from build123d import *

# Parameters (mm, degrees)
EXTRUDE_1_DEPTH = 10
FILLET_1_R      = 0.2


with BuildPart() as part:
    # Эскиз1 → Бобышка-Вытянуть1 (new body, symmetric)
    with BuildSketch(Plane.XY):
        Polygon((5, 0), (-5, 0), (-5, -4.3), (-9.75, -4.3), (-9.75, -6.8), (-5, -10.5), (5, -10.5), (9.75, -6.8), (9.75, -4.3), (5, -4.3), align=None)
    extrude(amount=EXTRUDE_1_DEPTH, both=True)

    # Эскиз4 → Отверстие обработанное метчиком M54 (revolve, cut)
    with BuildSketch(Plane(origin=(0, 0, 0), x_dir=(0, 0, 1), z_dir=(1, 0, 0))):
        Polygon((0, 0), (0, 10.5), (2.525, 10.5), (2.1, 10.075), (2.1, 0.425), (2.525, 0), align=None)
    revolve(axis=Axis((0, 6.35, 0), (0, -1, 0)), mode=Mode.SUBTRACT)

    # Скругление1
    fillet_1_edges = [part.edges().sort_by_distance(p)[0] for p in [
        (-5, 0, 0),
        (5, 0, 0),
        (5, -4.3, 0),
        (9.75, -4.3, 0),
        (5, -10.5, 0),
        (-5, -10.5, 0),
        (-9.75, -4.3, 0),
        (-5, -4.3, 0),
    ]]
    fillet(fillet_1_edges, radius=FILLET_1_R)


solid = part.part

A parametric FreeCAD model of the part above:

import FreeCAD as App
import Part
import Sketcher

V = App.Vector
Q = App.Units.Quantity


def edges_at(feature, points):
    """Names of the edges that pass closest to the given points."""
    edges = feature.Shape.Edges
    near = lambda p: min(range(len(edges)), key=lambda i: edges[i].distToShape(Part.Vertex(*p))[0])
    return sorted({f"Edge{near(p) + 1}" for p in points})

doc = App.newDocument("Part")
body = doc.addObject("PartDesign::Body", "Body")

sketch1 = body.newObject("Sketcher::SketchObject", "Sketch")
sketch1.AttachmentSupport = (doc.getObject("XY_Plane"), [""])
sketch1.MapMode = "FlatFace"
sketch1.addGeometry([
    Part.LineSegment(V(5, 0, 0), V(-5, 0, 0)),
    Part.LineSegment(V(-5, 0, 0), V(-5, -4.3, 0)),
    Part.LineSegment(V(-5, -4.3, 0), V(-9.8, -4.3, 0)),
    Part.LineSegment(V(-9.8, -4.3, 0), V(-9.8, -6.8, 0)),
    Part.LineSegment(V(-9.8, -6.8, 0), V(-5, -10.5, 0)),
    Part.LineSegment(V(-5, -10.5, 0), V(5, -10.5, 0)),
    Part.LineSegment(V(5, -10.5, 0), V(9.8, -6.8, 0)),
    Part.LineSegment(V(9.8, -6.8, 0), V(9.8, -4.3, 0)),
    Part.LineSegment(V(9.8, -4.3, 0), V(5, -4.3, 0)),
    Part.LineSegment(V(5, -4.3, 0), V(5, 0, 0)),
], False)
sketch1.addConstraint([
    Sketcher.Constraint("Coincident", 0, 2, 1, 1),
    Sketcher.Constraint("Coincident", 1, 2, 2, 1),
    Sketcher.Constraint("Coincident", 2, 2, 3, 1),
    Sketcher.Constraint("Coincident", 3, 2, 4, 1),
    Sketcher.Constraint("Coincident", 4, 2, 5, 1),
    Sketcher.Constraint("Coincident", 5, 2, 6, 1),
    Sketcher.Constraint("Coincident", 6, 2, 7, 1),
    Sketcher.Constraint("Coincident", 7, 2, 8, 1),
    Sketcher.Constraint("Coincident", 8, 2, 9, 1),
    Sketcher.Constraint("Coincident", 9, 2, 0, 1),
    Sketcher.Constraint("Horizontal", 0),
    Sketcher.Constraint("Vertical", 1),
    Sketcher.Constraint("Horizontal", 2),
    Sketcher.Constraint("Vertical", 3),
    Sketcher.Constraint("Horizontal", 5),
    Sketcher.Constraint("Vertical", 7),
    Sketcher.Constraint("Horizontal", 8),
    Sketcher.Constraint("Vertical", 9),
    Sketcher.Constraint("Symmetric", 0, 2, 9, 2, -1, 1),
    Sketcher.Constraint("Symmetric", 3, 2, 6, 2, -2),
    Sketcher.Constraint("Horizontal", 2, 2, 7, 2),
    Sketcher.Constraint("Vertical", 1, 2, 4, 2),
    Sketcher.Constraint("Vertical", 5, 2, 8, 2),
    Sketcher.Constraint("DistanceX", 0, 2, 0, 1, Q("10 mm")),
    Sketcher.Constraint("DistanceY", 1, 2, 1, 1, Q("4.3 mm")),
    Sketcher.Constraint("DistanceY", 3, 2, 3, 1, Q("2.5 mm")),
    Sketcher.Constraint("DistanceX", 2, 2, 2, 1, Q("4.75 mm")),
    Sketcher.Constraint("DistanceY", 4, 2, -1, 1, Q("10.5 mm")),
])
pad1 = body.newObject("PartDesign::Pad", "Pad")
pad1.Profile = sketch1
pad1.Length = 20
pad1.Midplane = True

sketch2 = body.newObject("Sketcher::SketchObject", "Sketch001")
sketch2.AttachmentSupport = (doc.getObject("YZ_Plane"), [""])
sketch2.MapMode = "FlatFace"
sketch2.addGeometry([
    Part.LineSegment(V(-10.5, 0, 0), V(0, 0, 0)),
    Part.LineSegment(V(0, 0, 0), V(0, 2.5, 0)),
    Part.LineSegment(V(0, 2.5, 0), V(-0.4, 2.1, 0)),
    Part.LineSegment(V(-0.4, 2.1, 0), V(-10.1, 2.1, 0)),
    Part.LineSegment(V(-10.1, 2.1, 0), V(-10.5, 2.5, 0)),
    Part.LineSegment(V(-10.5, 2.5, 0), V(-10.5, 0, 0)),
], False)
sketch2.addConstraint([
    Sketcher.Constraint("Coincident", 0, 2, 1, 1),
    Sketcher.Constraint("Coincident", 1, 2, 2, 1),
    Sketcher.Constraint("Coincident", 2, 2, 3, 1),
    Sketcher.Constraint("Coincident", 3, 2, 4, 1),
    Sketcher.Constraint("Coincident", 4, 2, 5, 1),
    Sketcher.Constraint("Coincident", 5, 2, 0, 1),
    Sketcher.Constraint("Horizontal", 0),
    Sketcher.Constraint("Vertical", 1),
    Sketcher.Constraint("Horizontal", 3),
    Sketcher.Constraint("Vertical", 5),
    Sketcher.Constraint("Coincident", 0, 2, -1, 1),
    Sketcher.Constraint("Perpendicular", 2, 4),
    Sketcher.Constraint("Horizontal", 1, 2, 4, 2),
    Sketcher.Constraint("Equal", 2, 4),
    Sketcher.Constraint("DistanceX", 0, 1, 0, 2, Q("10.5 mm")),
    Sketcher.Constraint("DistanceX", 3, 2, 3, 1, Q("9.65 mm")),
    Sketcher.Constraint("DistanceY", -1, 1, 2, 2, Q("2.1 mm")),
])
groove = body.newObject("PartDesign::Groove", "Groove")
groove.Profile = sketch2
groove.ReferenceAxis = (sketch2, ["H_Axis"])
groove.Angle = 360
doc.recompute()

fillet = body.newObject("PartDesign::Fillet", "Fillet")
fillet.Base = (groove, edges_at(groove, [
    (-5, 0, 0),
    (5, 0, 0),
    (5, -4.3, 0),
    (9.75, -4.3, 0),
    (5, -10.5, 0),
    (-5, -10.5, 0),
    (-9.75, -4.3, 0),
    (-5, -4.3, 0),
]))
fillet.Radius = 0.2

doc.recompute()
